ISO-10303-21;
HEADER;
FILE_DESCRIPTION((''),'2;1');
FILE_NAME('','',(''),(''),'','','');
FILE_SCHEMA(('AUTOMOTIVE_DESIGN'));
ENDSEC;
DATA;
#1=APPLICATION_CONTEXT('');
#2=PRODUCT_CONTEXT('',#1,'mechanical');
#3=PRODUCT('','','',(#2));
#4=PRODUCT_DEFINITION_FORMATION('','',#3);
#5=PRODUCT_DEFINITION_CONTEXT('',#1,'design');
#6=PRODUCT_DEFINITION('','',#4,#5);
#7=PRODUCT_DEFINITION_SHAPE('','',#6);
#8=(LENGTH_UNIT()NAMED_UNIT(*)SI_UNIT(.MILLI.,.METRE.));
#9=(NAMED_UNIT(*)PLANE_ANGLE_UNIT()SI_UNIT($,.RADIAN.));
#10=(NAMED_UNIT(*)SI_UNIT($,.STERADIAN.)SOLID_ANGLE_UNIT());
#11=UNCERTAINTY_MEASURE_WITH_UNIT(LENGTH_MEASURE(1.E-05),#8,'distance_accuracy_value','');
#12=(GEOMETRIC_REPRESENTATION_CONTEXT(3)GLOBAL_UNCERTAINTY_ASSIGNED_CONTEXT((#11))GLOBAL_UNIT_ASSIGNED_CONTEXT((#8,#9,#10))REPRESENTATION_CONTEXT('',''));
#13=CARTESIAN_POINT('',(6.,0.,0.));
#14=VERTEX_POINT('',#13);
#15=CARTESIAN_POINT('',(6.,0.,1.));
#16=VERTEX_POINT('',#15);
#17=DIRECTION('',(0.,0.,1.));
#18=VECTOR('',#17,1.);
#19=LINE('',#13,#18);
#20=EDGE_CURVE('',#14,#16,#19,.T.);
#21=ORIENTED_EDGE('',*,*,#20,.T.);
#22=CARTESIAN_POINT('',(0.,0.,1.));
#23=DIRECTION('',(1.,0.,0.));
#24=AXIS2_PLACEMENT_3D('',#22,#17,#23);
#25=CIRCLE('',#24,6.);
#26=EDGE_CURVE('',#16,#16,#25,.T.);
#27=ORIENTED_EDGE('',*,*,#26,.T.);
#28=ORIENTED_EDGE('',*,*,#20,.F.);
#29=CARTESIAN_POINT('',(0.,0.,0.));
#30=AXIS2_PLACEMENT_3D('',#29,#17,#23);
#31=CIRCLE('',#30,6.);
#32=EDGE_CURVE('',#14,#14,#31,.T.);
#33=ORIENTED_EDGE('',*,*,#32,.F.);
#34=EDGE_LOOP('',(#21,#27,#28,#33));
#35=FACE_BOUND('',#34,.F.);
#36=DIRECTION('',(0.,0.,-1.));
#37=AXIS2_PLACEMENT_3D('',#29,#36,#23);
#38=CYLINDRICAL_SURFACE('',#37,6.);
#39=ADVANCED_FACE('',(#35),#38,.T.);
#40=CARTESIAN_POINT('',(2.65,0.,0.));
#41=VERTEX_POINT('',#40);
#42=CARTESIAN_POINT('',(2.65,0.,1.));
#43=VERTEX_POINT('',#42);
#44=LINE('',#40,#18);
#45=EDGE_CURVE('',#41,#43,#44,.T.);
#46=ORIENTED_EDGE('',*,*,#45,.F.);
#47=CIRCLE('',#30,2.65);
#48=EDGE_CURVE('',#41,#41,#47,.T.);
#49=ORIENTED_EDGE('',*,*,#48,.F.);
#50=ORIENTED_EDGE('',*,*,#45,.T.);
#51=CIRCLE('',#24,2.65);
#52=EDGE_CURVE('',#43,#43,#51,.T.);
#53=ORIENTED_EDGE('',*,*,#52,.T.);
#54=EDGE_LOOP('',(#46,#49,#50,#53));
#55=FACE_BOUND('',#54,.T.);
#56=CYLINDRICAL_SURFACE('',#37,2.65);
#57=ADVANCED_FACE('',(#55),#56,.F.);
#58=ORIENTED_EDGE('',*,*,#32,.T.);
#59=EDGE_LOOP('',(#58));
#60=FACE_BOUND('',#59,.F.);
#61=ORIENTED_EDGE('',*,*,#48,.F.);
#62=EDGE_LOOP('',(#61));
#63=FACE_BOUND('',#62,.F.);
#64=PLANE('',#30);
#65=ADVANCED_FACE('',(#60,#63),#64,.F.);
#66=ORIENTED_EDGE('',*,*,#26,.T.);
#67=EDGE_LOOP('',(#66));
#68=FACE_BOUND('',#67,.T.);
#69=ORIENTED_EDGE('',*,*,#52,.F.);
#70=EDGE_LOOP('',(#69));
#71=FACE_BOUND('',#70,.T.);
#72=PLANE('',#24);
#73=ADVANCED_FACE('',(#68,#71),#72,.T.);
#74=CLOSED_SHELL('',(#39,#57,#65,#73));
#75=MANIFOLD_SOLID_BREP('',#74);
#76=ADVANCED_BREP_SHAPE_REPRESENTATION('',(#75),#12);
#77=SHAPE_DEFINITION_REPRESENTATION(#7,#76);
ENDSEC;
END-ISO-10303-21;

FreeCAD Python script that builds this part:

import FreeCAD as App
import Part
import Sketcher
from FreeCAD import Vector

doc = App.newDocument("Part")
body = doc.addObject("PartDesign::Body", "Body")

# Sketch on XY plane
sketch1 = body.newObject("Sketcher::SketchObject", "Sketch")
sketch1.AttachmentSupport = (doc.getObject("XY_Plane"), [""])
sketch1.MapMode = "FlatFace"
sketch1.addGeometry(Part.Circle(Vector(0, 0, 0), Vector(0, 0, 1), 6), False)
sketch1.addGeometry(Part.Circle(Vector(0, 0, 0), Vector(0, 0, 1), 2.6), False)
sketch1.addConstraint(Sketcher.Constraint("Coincident", 0, 3, -1, 1))
sketch1.addConstraint(Sketcher.Constraint("Coincident", 1, 3, -1, 1))
sketch1.addConstraint(Sketcher.Constraint("Diameter", 0, 12.0))
sketch1.addConstraint(Sketcher.Constraint("Diameter", 1, 5.3))
pad1 = body.newObject("PartDesign::Pad", "Pad")
pad1.Profile = sketch1
pad1.Length = 1

doc.recompute()
